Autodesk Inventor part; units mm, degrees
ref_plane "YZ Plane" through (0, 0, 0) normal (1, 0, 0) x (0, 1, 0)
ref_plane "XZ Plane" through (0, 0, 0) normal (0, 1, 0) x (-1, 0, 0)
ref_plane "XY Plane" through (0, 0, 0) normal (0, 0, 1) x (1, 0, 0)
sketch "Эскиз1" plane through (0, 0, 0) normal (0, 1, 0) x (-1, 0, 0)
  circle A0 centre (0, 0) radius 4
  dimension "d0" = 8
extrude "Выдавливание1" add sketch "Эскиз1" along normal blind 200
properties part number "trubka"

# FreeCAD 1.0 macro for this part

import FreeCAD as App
import Part
import Sketcher

doc = App.newDocument("Part")
body = doc.addObject("PartDesign::Body", "Body")

# Sketch on XZ plane
sketch1 = body.newObject("Sketcher::SketchObject", "Sketch")
sketch1.AttachmentSupport = (doc.getObject("XZ_Plane"), [""])
sketch1.MapMode = "FlatFace"
sketch1.addGeometry(Part.Circle(App.Vector(0, 0, 0), App.Vector(0, 0, 1), 4), False)
sketch1.addConstraint([
    Sketcher.Constraint("Coincident", 0, 3, -1, 1),
    Sketcher.Constraint("Diameter", 0, 8.0),
])
pad1 = body.newObject("PartDesign::Pad", "Pad")
pad1.Profile = sketch1
pad1.Length = 200
pad1.Reversed = True

doc.recompute()
